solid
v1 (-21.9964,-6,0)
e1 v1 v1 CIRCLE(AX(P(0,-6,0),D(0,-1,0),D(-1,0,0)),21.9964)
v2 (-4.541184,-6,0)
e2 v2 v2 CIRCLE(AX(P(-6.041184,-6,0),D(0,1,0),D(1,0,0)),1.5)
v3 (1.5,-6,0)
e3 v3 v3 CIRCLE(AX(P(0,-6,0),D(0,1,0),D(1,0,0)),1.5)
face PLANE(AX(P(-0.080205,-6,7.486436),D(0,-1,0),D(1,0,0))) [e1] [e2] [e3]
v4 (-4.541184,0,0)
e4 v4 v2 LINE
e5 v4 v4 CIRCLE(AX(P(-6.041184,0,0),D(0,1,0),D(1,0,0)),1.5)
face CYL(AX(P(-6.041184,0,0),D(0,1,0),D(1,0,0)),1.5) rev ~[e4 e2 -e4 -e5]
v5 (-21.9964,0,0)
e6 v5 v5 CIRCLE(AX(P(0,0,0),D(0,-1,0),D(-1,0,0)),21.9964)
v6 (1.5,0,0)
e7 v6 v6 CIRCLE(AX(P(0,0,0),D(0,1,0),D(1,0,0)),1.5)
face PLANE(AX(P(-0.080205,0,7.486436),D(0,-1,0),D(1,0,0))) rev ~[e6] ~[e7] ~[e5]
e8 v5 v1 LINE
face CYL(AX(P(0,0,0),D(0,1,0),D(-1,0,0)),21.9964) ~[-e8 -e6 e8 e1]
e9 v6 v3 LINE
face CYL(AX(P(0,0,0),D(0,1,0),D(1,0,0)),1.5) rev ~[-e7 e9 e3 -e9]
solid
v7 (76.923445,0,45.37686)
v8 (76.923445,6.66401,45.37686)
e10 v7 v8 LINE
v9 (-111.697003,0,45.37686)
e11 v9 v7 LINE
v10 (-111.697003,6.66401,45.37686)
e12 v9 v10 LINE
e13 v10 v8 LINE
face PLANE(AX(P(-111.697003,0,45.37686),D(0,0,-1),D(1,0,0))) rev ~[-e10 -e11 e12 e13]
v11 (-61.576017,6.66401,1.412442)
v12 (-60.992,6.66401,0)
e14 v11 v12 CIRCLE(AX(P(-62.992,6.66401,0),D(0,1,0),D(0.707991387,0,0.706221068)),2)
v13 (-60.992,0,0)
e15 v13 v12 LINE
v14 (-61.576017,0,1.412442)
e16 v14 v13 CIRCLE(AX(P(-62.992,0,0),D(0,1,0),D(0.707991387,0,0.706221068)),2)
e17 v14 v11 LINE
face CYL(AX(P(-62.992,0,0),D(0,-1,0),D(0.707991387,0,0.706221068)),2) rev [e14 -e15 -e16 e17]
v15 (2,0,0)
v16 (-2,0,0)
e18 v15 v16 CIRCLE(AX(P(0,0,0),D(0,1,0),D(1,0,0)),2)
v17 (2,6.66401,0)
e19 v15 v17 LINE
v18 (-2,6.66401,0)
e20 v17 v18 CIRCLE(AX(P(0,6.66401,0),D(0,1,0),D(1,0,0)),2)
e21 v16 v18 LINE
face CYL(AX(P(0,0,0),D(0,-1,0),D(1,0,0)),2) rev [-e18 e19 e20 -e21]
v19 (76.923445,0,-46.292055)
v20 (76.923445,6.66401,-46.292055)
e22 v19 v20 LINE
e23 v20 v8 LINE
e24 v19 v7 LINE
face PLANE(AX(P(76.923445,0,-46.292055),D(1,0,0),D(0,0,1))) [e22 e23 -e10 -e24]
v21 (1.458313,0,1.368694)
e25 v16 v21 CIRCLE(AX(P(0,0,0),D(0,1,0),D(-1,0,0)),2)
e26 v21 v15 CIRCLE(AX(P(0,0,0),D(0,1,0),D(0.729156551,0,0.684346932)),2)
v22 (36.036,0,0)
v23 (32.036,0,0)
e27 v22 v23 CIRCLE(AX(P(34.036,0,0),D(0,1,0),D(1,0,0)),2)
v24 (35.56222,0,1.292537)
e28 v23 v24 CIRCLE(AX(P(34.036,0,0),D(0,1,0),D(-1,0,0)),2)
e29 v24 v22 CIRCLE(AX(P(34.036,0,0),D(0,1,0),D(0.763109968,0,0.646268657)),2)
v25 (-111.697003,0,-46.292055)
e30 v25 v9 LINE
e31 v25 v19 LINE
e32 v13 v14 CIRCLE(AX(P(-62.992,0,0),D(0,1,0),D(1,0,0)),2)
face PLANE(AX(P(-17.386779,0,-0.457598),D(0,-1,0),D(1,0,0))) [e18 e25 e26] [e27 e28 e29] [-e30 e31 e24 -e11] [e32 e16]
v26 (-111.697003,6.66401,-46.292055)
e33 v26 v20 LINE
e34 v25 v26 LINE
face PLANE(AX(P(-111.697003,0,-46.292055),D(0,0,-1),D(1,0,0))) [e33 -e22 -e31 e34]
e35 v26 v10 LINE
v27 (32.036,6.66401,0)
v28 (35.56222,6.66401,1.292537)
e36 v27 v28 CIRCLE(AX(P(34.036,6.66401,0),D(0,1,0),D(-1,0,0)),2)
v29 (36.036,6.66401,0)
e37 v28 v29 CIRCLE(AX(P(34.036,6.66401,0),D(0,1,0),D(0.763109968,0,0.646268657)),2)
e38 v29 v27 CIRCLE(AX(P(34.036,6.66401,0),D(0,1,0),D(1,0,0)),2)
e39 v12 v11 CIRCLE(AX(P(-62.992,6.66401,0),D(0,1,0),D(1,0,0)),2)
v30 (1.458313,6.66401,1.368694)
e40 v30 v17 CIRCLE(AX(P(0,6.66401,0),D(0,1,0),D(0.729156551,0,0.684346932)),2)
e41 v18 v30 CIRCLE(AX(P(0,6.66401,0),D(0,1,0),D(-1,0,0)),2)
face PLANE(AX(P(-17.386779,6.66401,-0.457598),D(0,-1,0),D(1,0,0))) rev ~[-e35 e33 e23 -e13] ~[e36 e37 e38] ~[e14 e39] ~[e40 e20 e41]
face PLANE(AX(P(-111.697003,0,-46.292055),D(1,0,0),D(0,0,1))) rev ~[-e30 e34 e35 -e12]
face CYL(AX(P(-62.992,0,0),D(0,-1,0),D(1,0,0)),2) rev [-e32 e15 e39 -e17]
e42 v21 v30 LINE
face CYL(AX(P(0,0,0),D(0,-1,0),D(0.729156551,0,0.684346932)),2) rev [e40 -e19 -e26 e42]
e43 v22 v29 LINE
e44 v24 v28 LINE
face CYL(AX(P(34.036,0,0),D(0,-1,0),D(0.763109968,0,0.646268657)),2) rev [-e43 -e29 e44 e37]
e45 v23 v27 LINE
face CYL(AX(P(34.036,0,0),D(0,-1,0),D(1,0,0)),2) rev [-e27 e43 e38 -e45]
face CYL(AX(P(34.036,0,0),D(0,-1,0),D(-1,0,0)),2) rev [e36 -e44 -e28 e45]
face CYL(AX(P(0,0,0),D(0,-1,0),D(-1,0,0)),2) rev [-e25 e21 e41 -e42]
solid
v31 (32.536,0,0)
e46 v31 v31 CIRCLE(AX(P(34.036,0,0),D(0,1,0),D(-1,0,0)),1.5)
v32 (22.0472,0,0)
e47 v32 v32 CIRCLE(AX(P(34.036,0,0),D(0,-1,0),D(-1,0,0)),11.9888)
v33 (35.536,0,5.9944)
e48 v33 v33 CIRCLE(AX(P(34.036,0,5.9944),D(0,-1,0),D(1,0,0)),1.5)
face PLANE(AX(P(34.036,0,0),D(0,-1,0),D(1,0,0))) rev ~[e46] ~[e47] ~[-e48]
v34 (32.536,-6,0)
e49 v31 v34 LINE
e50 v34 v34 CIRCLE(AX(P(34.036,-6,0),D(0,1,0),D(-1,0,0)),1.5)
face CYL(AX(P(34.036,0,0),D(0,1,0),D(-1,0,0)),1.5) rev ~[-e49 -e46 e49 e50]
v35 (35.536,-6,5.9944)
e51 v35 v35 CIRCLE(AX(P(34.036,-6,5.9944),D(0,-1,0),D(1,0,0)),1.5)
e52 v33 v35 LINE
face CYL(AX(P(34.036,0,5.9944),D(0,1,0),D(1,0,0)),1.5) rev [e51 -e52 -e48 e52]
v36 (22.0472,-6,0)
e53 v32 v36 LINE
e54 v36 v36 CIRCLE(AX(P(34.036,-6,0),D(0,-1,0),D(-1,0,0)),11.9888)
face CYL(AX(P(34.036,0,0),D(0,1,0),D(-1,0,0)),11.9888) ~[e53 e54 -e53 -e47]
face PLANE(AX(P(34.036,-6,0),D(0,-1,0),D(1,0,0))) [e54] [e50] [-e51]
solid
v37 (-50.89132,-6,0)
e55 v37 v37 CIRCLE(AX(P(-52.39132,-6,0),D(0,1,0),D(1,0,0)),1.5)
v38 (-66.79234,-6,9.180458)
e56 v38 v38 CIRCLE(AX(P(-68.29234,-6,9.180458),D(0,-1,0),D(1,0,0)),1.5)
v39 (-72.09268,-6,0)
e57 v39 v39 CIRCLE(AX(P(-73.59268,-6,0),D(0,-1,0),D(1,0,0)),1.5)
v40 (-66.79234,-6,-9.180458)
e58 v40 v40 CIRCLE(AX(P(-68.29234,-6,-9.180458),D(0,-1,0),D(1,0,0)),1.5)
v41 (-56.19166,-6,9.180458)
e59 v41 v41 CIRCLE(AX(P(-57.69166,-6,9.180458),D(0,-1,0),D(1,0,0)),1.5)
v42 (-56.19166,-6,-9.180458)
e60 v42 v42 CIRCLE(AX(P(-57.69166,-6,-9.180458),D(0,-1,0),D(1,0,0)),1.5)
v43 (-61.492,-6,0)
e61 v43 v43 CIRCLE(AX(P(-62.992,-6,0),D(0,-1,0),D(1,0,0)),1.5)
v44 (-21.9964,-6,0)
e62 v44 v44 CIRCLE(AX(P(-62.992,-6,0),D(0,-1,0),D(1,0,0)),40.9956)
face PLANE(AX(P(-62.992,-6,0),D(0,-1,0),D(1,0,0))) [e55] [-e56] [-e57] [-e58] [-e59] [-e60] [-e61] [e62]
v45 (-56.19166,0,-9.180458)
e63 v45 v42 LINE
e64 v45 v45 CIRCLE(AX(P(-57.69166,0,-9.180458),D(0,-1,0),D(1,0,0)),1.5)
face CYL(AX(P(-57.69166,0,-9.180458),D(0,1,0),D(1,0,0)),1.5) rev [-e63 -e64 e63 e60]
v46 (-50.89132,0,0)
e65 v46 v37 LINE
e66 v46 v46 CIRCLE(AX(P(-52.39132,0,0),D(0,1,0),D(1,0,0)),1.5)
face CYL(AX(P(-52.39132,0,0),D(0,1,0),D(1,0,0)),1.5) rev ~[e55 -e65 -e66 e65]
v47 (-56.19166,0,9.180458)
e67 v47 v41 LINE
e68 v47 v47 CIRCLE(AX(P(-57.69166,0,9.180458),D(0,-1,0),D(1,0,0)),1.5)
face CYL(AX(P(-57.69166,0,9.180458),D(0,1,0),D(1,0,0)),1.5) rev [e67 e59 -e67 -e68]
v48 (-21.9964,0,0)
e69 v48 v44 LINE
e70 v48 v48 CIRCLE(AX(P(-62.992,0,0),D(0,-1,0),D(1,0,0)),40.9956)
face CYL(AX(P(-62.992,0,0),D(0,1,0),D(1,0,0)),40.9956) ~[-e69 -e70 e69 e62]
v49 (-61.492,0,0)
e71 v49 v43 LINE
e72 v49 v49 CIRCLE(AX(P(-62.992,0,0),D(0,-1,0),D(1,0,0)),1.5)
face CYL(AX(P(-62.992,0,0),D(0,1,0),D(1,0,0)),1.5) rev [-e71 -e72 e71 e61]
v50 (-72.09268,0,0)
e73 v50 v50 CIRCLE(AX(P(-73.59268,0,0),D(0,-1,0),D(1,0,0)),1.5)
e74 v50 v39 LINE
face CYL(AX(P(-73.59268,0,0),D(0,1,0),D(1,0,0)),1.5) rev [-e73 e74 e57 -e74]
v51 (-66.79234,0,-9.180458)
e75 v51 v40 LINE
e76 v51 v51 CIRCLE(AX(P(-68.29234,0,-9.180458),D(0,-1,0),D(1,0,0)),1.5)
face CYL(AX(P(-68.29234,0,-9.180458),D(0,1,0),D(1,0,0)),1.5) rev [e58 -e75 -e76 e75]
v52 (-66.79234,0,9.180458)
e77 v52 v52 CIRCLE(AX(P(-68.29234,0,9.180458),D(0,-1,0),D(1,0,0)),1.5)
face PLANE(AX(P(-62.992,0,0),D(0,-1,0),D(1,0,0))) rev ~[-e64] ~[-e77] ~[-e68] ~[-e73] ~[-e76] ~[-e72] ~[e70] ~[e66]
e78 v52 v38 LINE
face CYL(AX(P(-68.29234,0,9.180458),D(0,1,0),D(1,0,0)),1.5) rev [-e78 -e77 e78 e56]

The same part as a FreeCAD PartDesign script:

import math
import FreeCAD as App
import Part
import Sketcher
from FreeCAD import Vector

doc = App.newDocument("Part")
params = doc.addObject("Spreadsheet::Sheet", "Params")
for row, (alias, value) in enumerate([
    ("sketch1_diameter", "3 mm"),
    ("pad1_length", "6 mm"),
    ("sketch2_diameter", "3 mm"),
    ("pad2_length", "6 mm"),
    ("sketch3_diameter", "3 mm"),
    ("pad3_length", "6 mm"),
    ("sketch4_radius", "2 mm"),
    ("pad4_length", "6.66401 mm"),
], start=1):
    params.set(f"A{row}", alias)
    params.set(f"B{row}", "=" + value)
    params.setAlias(f"B{row}", alias)

body = doc.addObject("PartDesign::Body", "Body")

sketch1 = body.newObject("Sketcher::SketchObject", "Sketch")
sketch1.AttachmentSupport = (doc.getObject("XZ_Plane"), [""])
sketch1.MapMode = "FlatFace"
sketch1.addGeometry([
    Part.Circle(Vector(-63, 0, 0), Vector(0, 0, 1), 41),
    Part.Circle(Vector(-68.3, -9.2, 0), Vector(0, 0, 1), 1.5),
    Part.Circle(Vector(-57.7, -9.2, 0), Vector(0, 0, 1), 1.5),
    Part.Circle(Vector(-52.4, 0, 0), Vector(0, 0, 1), 1.5),
    Part.Circle(Vector(-73.6, 0, 0), Vector(0, 0, 1), 1.5),
    Part.Circle(Vector(-68.3, 9.2, 0), Vector(0, 0, 1), 1.5),
    Part.Circle(Vector(-63, 0, 0), Vector(0, 0, 1), 1.5),
    Part.Circle(Vector(-57.7, 9.2, 0), Vector(0, 0, 1), 1.5),
], False)
sketch1.addConstraint([
    Sketcher.Constraint("Coincident", 6, 3, 0, 3),
    Sketcher.Constraint("Equal", 1, 2),
    Sketcher.Constraint("Equal", 2, 3),
    Sketcher.Constraint("Equal", 3, 4),
    Sketcher.Constraint("Equal", 4, 5),
    Sketcher.Constraint("Equal", 5, 6),
    Sketcher.Constraint("Equal", 6, 7),
    Sketcher.Constraint("Symmetric", 1, 3, 5, 3, -1),
    Sketcher.Constraint("Symmetric", 2, 3, 7, 3, -1),
    Sketcher.Constraint("PointOnObject", 0, 3, -1),
    Sketcher.Constraint("PointOnObject", 3, 3, -1),
    Sketcher.Constraint("PointOnObject", 4, 3, -1),
    Sketcher.Constraint("Horizontal", 1, 3, 2, 3),
    Sketcher.Constraint("Diameter", 1, 3.0),
    Sketcher.Constraint("Diameter", 0, 81.9912),
    Sketcher.Constraint("DistanceX", 0, 3, -1, 1, 62.992),
    Sketcher.Constraint("DistanceX", 1, 3, -1, 1, 68.29234),
    Sketcher.Constraint("DistanceY", 1, 3, -1, 1, 9.180458),
    Sketcher.Constraint("DistanceX", 2, 3, -1, 1, 57.69166),
    Sketcher.Constraint("DistanceX", 3, 3, -1, 1, 52.39132),
    Sketcher.Constraint("DistanceX", 4, 3, -1, 1, 73.59268),
])
sketch1.setExpression("Constraints[13]", "Params.sketch1_diameter")
pad1 = body.newObject("PartDesign::Pad", "Pad")
pad1.Profile = sketch1
pad1.setExpression("Length", "Params.pad1_length")
body2 = doc.addObject("PartDesign::Body", "Body001")

sketch2 = body2.newObject("Sketcher::SketchObject", "Sketch001")
sketch2.AttachmentSupport = (doc.getObject("XZ_Plane001"), [""])
sketch2.MapMode = "FlatFace"
sketch2.addGeometry([
    Part.Circle(Vector(0, 0, 0), Vector(0, 0, 1), 22),
    Part.Circle(Vector(-6, 0, 0), Vector(0, 0, 1), 1.5),
    Part.Circle(Vector(0, 0, 0), Vector(0, 0, 1), 1.5),
], False)
sketch2.addConstraint([
    Sketcher.Constraint("Coincident", 0, 3, -1, 1),
    Sketcher.Constraint("Coincident", 2, 3, -1, 1),
    Sketcher.Constraint("Equal", 1, 2),
    Sketcher.Constraint("PointOnObject", 1, 3, -1),
    Sketcher.Constraint("Diameter", 1, 3.0),
    Sketcher.Constraint("Diameter", 0, 43.9928),
    Sketcher.Constraint("DistanceX", 1, 3, -1, 1, 6.041184),
])
sketch2.setExpression("Constraints[4]", "Params.sketch2_diameter")
pad2 = body2.newObject("PartDesign::Pad", "Pad001")
pad2.Profile = sketch2
pad2.setExpression("Length", "Params.pad2_length")
body3 = doc.addObject("PartDesign::Body", "Body002")

sketch3 = body3.newObject("Sketcher::SketchObject", "Sketch002")
sketch3.AttachmentSupport = (doc.getObject("XZ_Plane002"), [""])
sketch3.MapMode = "FlatFace"
sketch3.addGeometry([
    Part.Circle(Vector(34, 0, 0), Vector(0, 0, 1), 12),
    Part.Circle(Vector(34, 0, 0), Vector(0, 0, 1), 1.5),
    Part.Circle(Vector(34, 6, 0), Vector(0, 0, 1), 1.5),
], False)
sketch3.addConstraint([
    Sketcher.Constraint("Coincident", 1, 3, 0, 3),
    Sketcher.Constraint("Equal", 1, 2),
    Sketcher.Constraint("PointOnObject", 0, 3, -1),
    Sketcher.Constraint("Vertical", 1, 3, 2, 3),
    Sketcher.Constraint("Diameter", 1, 3.0),
    Sketcher.Constraint("Diameter", 0, 23.9776),
    Sketcher.Constraint("DistanceX", -1, 1, 0, 3, 34.036),
    Sketcher.Constraint("DistanceY", -1, 1, 2, 3, 5.9944),
])
sketch3.setExpression("Constraints[4]", "Params.sketch3_diameter")
pad3 = body3.newObject("PartDesign::Pad", "Pad002")
pad3.Profile = sketch3
pad3.setExpression("Length", "Params.pad3_length")
body4 = doc.addObject("PartDesign::Body", "Body003")

sketch4 = body4.newObject("Sketcher::SketchObject", "Sketch003")
sketch4.AttachmentSupport = (doc.getObject("XZ_Plane003"), [""])
sketch4.MapMode = "FlatFace"
sketch4.addGeometry([
    Part.LineSegment(Vector(-111.7, 45.4, 0), Vector(-111.7, -46.3, 0)),
    Part.LineSegment(Vector(-111.7, -46.3, 0), Vector(76.9, -46.3, 0)),
    Part.LineSegment(Vector(76.9, -46.3, 0), Vector(76.9, 45.4, 0)),
    Part.LineSegment(Vector(76.9, 45.4, 0), Vector(-111.7, 45.4, 0)),
    Part.ArcOfCircle(Part.Circle(Vector(-63, 0, 0), Vector(0, 0, 1), 2), math.radians(45), math.radians(360)),
    Part.ArcOfCircle(Part.Circle(Vector(-63, 0, 0), Vector(0, 0, 1), 2), math.radians(0), math.radians(45)),
    Part.ArcOfCircle(Part.Circle(Vector(0, 0, 0), Vector(0, 0, 1), 2), math.radians(0), math.radians(43)),
    Part.ArcOfCircle(Part.Circle(Vector(0, 0, 0), Vector(0, 0, 1), 2), math.radians(180), math.radians(360)),
    Part.ArcOfCircle(Part.Circle(Vector(0, 0, 0), Vector(0, 0, 1), 2), math.radians(43), math.radians(180)),
    Part.ArcOfCircle(Part.Circle(Vector(34, 0, 0), Vector(0, 0, 1), 2), math.radians(0), math.radians(40)),
    Part.ArcOfCircle(Part.Circle(Vector(34, 0, 0), Vector(0, 0, 1), 2), math.radians(180), math.radians(360)),
    Part.ArcOfCircle(Part.Circle(Vector(34, 0, 0), Vector(0, 0, 1), 2), math.radians(40), math.radians(180)),
], False)
sketch4.addConstraint([
    Sketcher.Constraint("Coincident", 0, 2, 1, 1),
    Sketcher.Constraint("Coincident", 1, 2, 2, 1),
    Sketcher.Constraint("Coincident", 2, 2, 3, 1),
    Sketcher.Constraint("Coincident", 3, 2, 0, 1),
    Sketcher.Constraint("Tangent", 4, 1, 5, 2),
    Sketcher.Constraint("Coincident", 5, 1, 4, 2),
    Sketcher.Constraint("Tangent", 6, 1, 7, 2),
    Sketcher.Constraint("Tangent", 7, 1, 8, 2),
    Sketcher.Constraint("Tangent", 8, 1, 6, 2),
    Sketcher.Constraint("Tangent", 9, 1, 10, 2),
    Sketcher.Constraint("Tangent", 10, 1, 11, 2),
    Sketcher.Constraint("Tangent", 11, 1, 9, 2),
    Sketcher.Constraint("Vertical", 0),
    Sketcher.Constraint("Horizontal", 1),
    Sketcher.Constraint("Vertical", 2),
    Sketcher.Constraint("Horizontal", 3),
    Sketcher.Constraint("Coincident", 6, 3, -1, 1),
    Sketcher.Constraint("Equal", 5, 6),
    Sketcher.Constraint("Equal", 8, 9),
    Sketcher.Constraint("PointOnObject", 4, 3, -1),
    Sketcher.Constraint("PointOnObject", 9, 3, -1),
    Sketcher.Constraint("PointOnObject", 5, 1, -1),
    Sketcher.Constraint("PointOnObject", 6, 1, -1),
    Sketcher.Constraint("PointOnObject", 7, 1, -1),
    Sketcher.Constraint("PointOnObject", 9, 1, -1),
    Sketcher.Constraint("PointOnObject", 10, 1, -1),
    Sketcher.Constraint("Radius", 4, 2.0),
    Sketcher.Constraint("DistanceX", 4, 3, -1, 1, 62.992),
    Sketcher.Constraint("DistanceX", -1, 1, 9, 3, 34.036),
    Sketcher.Constraint("DistanceX", 1, 1, 1, 2, 188.620448),
    Sketcher.Constraint("DistanceY", 0, 2, 0, 1, 91.668915),
    Sketcher.Constraint("DistanceY", -1, 1, 2, 2, 45.37686),
    Sketcher.Constraint("DistanceX", -1, 1, 11, 1, 35.56222),
    Sketcher.Constraint("DistanceX", 0, 2, -1, 1, 111.697003),
    Sketcher.Constraint("DistanceX", 4, 1, -1, 1, 61.576017),
    Sketcher.Constraint("DistanceX", -1, 1, 8, 1, 1.458313),
])
sketch4.setExpression("Constraints[26]", "Params.sketch4_radius")
pad4 = body4.newObject("PartDesign::Pad", "Pad003")
pad4.Profile = sketch4
pad4.setExpression("Length", "Params.pad4_length")
pad4.Reversed = True

doc.recompute()
